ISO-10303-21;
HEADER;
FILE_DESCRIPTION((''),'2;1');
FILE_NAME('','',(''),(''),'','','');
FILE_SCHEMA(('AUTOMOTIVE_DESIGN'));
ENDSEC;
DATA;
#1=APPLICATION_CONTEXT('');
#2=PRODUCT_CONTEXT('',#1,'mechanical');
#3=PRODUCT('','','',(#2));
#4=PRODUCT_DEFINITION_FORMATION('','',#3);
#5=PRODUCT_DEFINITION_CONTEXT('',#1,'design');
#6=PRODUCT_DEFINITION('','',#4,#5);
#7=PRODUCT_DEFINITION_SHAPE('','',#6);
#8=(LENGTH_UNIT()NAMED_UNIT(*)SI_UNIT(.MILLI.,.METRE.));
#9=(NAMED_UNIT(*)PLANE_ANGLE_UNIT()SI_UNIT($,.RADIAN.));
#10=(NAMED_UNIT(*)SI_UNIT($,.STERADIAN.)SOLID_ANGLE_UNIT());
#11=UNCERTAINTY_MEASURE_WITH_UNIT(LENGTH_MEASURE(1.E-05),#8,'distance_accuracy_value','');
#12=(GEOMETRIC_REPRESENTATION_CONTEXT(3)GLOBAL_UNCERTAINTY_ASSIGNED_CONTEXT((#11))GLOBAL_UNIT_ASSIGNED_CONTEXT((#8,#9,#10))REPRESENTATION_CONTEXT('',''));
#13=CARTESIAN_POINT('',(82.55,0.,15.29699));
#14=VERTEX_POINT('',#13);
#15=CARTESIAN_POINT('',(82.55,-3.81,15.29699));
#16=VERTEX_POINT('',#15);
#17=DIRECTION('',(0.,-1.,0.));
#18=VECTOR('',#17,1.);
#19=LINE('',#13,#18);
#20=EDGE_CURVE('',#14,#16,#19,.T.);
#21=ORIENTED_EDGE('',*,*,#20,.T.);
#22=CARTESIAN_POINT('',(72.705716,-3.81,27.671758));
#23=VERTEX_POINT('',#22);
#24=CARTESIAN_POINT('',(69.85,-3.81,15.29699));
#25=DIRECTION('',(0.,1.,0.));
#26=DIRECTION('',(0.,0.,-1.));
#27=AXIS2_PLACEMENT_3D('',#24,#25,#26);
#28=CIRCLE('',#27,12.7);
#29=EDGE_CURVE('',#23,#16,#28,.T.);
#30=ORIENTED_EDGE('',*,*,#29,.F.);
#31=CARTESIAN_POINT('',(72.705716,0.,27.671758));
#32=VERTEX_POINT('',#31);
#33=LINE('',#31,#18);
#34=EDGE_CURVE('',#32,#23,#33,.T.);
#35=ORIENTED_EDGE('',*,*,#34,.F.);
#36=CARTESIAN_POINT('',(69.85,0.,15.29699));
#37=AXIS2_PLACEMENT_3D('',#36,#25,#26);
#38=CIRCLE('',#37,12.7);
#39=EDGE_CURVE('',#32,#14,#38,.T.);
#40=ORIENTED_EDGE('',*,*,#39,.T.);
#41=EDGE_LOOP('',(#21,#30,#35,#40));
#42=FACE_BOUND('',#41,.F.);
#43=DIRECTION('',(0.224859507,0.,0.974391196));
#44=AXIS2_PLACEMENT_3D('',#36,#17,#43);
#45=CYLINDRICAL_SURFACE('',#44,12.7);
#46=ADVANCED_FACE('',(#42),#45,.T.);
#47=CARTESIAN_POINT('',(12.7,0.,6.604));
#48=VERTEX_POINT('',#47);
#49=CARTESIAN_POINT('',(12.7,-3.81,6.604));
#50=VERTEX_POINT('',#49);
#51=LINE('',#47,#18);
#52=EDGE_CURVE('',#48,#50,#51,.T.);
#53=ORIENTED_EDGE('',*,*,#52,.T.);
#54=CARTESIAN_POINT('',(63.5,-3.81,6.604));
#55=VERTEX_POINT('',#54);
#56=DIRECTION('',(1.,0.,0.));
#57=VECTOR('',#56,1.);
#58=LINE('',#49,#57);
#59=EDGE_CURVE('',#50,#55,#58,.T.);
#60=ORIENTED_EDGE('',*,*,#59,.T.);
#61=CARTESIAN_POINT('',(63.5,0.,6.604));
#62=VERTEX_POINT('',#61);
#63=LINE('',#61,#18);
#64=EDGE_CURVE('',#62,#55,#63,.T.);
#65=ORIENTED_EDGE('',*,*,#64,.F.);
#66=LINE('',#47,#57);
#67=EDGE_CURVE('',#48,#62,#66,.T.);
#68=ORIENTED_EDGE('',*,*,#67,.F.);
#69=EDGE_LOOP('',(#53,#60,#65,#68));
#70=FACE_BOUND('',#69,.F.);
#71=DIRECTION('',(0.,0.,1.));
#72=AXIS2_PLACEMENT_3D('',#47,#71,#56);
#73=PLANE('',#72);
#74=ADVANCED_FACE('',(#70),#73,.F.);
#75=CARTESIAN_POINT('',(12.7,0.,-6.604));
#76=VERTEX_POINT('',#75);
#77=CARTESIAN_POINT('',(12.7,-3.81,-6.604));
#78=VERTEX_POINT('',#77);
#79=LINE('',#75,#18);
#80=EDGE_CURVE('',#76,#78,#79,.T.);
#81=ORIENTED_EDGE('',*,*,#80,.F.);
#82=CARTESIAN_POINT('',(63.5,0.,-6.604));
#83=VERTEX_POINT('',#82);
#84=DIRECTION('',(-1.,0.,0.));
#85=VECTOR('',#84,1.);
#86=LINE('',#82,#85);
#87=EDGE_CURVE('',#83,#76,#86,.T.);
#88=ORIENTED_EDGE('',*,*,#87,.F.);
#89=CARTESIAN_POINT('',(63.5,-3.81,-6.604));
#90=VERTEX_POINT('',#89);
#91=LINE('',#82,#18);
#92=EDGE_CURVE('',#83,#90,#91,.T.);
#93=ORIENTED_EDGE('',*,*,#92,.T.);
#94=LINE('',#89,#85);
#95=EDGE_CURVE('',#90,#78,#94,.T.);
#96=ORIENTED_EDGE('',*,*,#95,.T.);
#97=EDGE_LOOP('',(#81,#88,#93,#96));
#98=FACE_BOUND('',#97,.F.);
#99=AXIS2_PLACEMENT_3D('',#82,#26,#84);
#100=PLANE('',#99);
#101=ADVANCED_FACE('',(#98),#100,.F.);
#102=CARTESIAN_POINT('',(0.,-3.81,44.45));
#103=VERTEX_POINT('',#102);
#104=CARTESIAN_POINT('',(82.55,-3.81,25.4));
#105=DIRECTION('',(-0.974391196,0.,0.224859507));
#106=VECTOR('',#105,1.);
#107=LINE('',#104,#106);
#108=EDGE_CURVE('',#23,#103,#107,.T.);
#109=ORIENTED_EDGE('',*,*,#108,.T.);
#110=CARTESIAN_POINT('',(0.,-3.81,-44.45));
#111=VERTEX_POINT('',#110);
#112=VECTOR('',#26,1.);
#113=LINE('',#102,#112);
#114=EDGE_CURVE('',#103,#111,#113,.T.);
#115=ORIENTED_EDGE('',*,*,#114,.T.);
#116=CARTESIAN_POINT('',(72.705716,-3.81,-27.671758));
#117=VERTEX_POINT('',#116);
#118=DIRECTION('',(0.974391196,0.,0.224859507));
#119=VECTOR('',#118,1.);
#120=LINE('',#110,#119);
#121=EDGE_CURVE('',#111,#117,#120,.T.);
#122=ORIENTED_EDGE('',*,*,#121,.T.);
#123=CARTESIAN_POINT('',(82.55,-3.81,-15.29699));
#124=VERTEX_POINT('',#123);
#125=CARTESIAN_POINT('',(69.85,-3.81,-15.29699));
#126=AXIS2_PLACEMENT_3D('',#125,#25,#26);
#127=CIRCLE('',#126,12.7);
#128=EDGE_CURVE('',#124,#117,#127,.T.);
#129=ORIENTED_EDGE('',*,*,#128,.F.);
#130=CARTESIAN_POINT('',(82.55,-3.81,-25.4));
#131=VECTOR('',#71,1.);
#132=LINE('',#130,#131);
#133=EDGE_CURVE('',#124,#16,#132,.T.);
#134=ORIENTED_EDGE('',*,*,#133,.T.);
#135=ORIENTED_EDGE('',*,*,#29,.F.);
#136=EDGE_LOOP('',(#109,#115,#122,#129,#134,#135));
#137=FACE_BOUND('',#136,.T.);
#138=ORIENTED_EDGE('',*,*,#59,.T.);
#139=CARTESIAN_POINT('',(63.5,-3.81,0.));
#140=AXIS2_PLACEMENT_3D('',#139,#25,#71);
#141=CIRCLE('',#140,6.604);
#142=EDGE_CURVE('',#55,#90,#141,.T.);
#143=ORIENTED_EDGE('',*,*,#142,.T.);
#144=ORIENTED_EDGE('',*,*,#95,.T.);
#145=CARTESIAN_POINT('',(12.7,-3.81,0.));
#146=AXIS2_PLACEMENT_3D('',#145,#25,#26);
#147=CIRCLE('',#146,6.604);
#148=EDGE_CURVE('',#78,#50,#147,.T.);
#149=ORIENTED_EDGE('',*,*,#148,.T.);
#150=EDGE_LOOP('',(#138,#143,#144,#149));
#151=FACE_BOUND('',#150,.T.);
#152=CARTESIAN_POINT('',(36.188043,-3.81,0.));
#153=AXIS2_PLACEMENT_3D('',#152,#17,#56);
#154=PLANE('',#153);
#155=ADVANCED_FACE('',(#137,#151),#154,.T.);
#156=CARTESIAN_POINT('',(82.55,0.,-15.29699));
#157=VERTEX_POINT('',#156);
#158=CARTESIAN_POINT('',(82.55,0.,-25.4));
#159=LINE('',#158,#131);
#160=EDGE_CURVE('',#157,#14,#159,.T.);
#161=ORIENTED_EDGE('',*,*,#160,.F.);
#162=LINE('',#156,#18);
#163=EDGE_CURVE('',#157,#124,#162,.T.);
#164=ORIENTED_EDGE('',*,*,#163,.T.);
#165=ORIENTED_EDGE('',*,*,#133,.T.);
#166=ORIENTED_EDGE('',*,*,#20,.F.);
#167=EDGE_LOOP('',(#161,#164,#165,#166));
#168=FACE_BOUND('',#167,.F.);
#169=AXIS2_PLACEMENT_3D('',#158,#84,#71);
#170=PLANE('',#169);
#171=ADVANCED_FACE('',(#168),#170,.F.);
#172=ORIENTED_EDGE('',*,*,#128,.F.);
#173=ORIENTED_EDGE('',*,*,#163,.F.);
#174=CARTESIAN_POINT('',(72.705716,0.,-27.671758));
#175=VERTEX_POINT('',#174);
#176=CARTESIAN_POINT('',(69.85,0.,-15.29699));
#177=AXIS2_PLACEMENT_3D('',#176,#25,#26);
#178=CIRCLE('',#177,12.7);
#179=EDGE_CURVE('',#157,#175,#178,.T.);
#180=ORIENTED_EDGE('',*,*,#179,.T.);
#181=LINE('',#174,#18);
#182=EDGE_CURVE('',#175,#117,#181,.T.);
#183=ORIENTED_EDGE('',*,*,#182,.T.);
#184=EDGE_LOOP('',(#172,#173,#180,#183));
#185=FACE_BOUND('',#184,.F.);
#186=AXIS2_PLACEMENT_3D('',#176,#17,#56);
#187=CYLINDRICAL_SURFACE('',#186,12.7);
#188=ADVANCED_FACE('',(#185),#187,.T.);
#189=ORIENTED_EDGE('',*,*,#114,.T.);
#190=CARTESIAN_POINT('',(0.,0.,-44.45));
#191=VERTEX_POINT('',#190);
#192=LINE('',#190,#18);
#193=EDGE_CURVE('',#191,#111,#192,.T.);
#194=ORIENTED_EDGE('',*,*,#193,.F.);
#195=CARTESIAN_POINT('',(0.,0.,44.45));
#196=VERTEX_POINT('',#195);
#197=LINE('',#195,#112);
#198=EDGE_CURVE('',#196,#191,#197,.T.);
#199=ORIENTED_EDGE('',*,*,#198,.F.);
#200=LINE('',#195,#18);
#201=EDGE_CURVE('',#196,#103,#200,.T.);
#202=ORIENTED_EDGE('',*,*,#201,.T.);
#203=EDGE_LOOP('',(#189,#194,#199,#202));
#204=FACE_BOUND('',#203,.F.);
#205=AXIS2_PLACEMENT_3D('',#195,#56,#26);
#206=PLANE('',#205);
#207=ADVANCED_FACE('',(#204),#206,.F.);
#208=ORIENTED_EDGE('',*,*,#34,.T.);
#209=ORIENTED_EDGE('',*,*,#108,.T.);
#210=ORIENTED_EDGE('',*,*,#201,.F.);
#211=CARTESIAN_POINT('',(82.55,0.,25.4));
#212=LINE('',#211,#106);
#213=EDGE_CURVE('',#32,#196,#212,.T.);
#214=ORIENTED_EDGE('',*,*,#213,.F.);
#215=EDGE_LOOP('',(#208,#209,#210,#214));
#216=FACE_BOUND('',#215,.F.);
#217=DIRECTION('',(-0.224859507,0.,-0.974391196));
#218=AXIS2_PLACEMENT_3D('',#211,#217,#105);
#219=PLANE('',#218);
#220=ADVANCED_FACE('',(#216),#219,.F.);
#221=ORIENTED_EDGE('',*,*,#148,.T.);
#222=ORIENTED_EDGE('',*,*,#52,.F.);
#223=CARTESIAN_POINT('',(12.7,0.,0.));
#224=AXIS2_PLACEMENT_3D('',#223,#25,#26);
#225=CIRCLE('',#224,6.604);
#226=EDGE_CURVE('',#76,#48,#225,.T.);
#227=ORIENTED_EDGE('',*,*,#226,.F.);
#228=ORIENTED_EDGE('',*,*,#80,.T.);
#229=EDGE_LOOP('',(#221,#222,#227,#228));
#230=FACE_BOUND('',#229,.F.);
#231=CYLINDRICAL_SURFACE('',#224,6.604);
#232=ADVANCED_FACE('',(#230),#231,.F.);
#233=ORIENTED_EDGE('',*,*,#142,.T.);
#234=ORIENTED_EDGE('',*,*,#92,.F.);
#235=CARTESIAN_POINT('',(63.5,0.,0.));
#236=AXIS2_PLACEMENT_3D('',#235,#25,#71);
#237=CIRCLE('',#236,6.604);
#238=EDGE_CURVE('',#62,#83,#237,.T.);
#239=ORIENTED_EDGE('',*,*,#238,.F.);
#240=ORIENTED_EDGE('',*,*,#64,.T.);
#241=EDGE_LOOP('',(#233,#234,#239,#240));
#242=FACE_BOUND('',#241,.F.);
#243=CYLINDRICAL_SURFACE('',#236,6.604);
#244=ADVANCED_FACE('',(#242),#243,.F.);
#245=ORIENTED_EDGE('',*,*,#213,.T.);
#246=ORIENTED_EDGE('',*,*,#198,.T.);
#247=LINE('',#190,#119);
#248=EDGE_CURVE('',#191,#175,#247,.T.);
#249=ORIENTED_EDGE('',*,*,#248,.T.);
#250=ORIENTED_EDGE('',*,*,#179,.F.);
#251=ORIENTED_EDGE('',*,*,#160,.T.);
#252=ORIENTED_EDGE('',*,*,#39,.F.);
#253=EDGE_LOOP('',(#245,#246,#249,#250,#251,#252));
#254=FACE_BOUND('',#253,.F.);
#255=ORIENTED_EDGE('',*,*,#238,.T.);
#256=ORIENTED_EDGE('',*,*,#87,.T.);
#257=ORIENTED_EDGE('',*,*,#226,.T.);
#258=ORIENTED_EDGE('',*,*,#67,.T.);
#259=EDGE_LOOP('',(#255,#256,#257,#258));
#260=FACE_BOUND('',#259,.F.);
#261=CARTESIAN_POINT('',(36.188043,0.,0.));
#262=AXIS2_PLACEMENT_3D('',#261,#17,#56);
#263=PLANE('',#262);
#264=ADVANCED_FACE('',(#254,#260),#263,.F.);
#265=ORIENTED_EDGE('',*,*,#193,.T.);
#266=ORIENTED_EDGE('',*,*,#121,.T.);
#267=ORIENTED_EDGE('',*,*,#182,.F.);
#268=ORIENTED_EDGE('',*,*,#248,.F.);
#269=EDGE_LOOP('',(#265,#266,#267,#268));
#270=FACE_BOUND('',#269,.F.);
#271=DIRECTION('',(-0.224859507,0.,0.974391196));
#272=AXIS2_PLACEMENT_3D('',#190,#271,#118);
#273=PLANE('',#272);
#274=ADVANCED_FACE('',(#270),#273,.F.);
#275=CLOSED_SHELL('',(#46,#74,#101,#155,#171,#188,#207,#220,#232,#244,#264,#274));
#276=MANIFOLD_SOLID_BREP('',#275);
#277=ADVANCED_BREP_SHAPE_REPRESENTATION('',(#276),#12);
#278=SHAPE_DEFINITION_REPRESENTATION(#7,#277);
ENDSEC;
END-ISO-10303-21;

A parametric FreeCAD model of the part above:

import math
import FreeCAD as App
import Part
import Sketcher
Q = App.Units.Quantity


def edges_at(feature, points):
    """Names of the edges that pass closest to the given points."""
    edges = feature.Shape.Edges
    near = lambda p: min(range(len(edges)), key=lambda i: edges[i].distToShape(Part.Vertex(*p))[0])
    return sorted({f"Edge{near(p) + 1}" for p in points})


def add_polygon(sketch, points):
    """Adds a closed chain of lines whose ends are joined by coincident constraints."""
    first, n = sketch.GeometryCount, len(points)
    for a, b in zip(points, points[1:] + points[:1]):
        sketch.addGeometry(Part.LineSegment(App.Vector(*a, 0), App.Vector(*b, 0)), False)
    for i in range(n):
        sketch.addConstraint(Sketcher.Constraint("Coincident", first + i, 2, first + (i + 1) % n, 1))

doc = App.newDocument("Part")
body = doc.addObject("PartDesign::Body", "Body")

sketch1 = doc.addObject("Sketcher::SketchObject", "Sketch")
body.addObject(sketch1)
sketch1.AttachmentSupport = (doc.XZ_Plane, [""])
sketch1.MapMode = "FlatFace"
add_polygon(sketch1, [(83, 25), (0, 44), (0, -44), (83, -25)])
sketch1.addGeometry(Part.LineSegment(App.Vector(64, -7, 0), App.Vector(13, -7, 0)), False)
sketch1.addGeometry(Part.ArcOfCircle(Part.Circle(App.Vector(13, 0, 0), App.Vector(0, 0, 1), 7), math.radians(90), math.radians(270)), False)
sketch1.addGeometry(Part.LineSegment(App.Vector(13, 7, 0), App.Vector(64, 7, 0)), False)
sketch1.addGeometry(Part.ArcOfCircle(Part.Circle(App.Vector(64, 0, 0), App.Vector(0, 0, 1), 7), math.radians(-90), math.radians(90)), False)
sketch1.addConstraint(Sketcher.Constraint("Tangent", 4, 2, 5, 2))
sketch1.addConstraint(Sketcher.Constraint("Tangent", 5, 1, 6, 1))
sketch1.addConstraint(Sketcher.Constraint("Tangent", 6, 2, 7, 2))
sketch1.addConstraint(Sketcher.Constraint("Tangent", 7, 1, 4, 1))
sketch1.addConstraint(Sketcher.Constraint("Vertical", 1))
sketch1.addConstraint(Sketcher.Constraint("Vertical", 3))
sketch1.addConstraint(Sketcher.Constraint("Horizontal", 4))
sketch1.addConstraint(Sketcher.Constraint("Horizontal", 6))
sketch1.addConstraint(Sketcher.Constraint("Symmetric", 0, 2, 1, 2, -1, 1))
sketch1.addConstraint(Sketcher.Constraint("PointOnObject", 5, 3, -1))
sketch1.addConstraint(Sketcher.Constraint("Equal", 6, 3))
sketch1.addConstraint(Sketcher.Constraint("Equal", 0, 2))
sketch1.addConstraint(Sketcher.Constraint("DistanceX", 4, 2, 4, 1, Q("2 in")))
sketch1.addConstraint(Sketcher.Constraint("Radius", 5, Q("0.26 in")))
sketch1.addConstraint(Sketcher.Constraint("DistanceY", 1, 2, 1, 1, Q("3.5 in")))
sketch1.addConstraint(Sketcher.Constraint("DistanceX", -1, 1, 5, 3, Q("0.5 in")))
sketch1.addConstraint(Sketcher.Constraint("DistanceX", -1, 1, 2, 2, Q("3.25 in")))
pad1 = doc.addObject("PartDesign::Pad", "Pad")
body.addObject(pad1)
pad1.Profile = sketch1
pad1.Length = Q("0.15 in")
doc.recompute()

fillet = doc.addObject("PartDesign::Fillet", "Fillet")
body.addObject(fillet)
fillet.Base = (pad1, edges_at(pad1, [(82.55, -1.905, 25.4), (82.55, -1.905, -25.4)]))
fillet.Radius = Q("0.5 in")

doc.recompute()
